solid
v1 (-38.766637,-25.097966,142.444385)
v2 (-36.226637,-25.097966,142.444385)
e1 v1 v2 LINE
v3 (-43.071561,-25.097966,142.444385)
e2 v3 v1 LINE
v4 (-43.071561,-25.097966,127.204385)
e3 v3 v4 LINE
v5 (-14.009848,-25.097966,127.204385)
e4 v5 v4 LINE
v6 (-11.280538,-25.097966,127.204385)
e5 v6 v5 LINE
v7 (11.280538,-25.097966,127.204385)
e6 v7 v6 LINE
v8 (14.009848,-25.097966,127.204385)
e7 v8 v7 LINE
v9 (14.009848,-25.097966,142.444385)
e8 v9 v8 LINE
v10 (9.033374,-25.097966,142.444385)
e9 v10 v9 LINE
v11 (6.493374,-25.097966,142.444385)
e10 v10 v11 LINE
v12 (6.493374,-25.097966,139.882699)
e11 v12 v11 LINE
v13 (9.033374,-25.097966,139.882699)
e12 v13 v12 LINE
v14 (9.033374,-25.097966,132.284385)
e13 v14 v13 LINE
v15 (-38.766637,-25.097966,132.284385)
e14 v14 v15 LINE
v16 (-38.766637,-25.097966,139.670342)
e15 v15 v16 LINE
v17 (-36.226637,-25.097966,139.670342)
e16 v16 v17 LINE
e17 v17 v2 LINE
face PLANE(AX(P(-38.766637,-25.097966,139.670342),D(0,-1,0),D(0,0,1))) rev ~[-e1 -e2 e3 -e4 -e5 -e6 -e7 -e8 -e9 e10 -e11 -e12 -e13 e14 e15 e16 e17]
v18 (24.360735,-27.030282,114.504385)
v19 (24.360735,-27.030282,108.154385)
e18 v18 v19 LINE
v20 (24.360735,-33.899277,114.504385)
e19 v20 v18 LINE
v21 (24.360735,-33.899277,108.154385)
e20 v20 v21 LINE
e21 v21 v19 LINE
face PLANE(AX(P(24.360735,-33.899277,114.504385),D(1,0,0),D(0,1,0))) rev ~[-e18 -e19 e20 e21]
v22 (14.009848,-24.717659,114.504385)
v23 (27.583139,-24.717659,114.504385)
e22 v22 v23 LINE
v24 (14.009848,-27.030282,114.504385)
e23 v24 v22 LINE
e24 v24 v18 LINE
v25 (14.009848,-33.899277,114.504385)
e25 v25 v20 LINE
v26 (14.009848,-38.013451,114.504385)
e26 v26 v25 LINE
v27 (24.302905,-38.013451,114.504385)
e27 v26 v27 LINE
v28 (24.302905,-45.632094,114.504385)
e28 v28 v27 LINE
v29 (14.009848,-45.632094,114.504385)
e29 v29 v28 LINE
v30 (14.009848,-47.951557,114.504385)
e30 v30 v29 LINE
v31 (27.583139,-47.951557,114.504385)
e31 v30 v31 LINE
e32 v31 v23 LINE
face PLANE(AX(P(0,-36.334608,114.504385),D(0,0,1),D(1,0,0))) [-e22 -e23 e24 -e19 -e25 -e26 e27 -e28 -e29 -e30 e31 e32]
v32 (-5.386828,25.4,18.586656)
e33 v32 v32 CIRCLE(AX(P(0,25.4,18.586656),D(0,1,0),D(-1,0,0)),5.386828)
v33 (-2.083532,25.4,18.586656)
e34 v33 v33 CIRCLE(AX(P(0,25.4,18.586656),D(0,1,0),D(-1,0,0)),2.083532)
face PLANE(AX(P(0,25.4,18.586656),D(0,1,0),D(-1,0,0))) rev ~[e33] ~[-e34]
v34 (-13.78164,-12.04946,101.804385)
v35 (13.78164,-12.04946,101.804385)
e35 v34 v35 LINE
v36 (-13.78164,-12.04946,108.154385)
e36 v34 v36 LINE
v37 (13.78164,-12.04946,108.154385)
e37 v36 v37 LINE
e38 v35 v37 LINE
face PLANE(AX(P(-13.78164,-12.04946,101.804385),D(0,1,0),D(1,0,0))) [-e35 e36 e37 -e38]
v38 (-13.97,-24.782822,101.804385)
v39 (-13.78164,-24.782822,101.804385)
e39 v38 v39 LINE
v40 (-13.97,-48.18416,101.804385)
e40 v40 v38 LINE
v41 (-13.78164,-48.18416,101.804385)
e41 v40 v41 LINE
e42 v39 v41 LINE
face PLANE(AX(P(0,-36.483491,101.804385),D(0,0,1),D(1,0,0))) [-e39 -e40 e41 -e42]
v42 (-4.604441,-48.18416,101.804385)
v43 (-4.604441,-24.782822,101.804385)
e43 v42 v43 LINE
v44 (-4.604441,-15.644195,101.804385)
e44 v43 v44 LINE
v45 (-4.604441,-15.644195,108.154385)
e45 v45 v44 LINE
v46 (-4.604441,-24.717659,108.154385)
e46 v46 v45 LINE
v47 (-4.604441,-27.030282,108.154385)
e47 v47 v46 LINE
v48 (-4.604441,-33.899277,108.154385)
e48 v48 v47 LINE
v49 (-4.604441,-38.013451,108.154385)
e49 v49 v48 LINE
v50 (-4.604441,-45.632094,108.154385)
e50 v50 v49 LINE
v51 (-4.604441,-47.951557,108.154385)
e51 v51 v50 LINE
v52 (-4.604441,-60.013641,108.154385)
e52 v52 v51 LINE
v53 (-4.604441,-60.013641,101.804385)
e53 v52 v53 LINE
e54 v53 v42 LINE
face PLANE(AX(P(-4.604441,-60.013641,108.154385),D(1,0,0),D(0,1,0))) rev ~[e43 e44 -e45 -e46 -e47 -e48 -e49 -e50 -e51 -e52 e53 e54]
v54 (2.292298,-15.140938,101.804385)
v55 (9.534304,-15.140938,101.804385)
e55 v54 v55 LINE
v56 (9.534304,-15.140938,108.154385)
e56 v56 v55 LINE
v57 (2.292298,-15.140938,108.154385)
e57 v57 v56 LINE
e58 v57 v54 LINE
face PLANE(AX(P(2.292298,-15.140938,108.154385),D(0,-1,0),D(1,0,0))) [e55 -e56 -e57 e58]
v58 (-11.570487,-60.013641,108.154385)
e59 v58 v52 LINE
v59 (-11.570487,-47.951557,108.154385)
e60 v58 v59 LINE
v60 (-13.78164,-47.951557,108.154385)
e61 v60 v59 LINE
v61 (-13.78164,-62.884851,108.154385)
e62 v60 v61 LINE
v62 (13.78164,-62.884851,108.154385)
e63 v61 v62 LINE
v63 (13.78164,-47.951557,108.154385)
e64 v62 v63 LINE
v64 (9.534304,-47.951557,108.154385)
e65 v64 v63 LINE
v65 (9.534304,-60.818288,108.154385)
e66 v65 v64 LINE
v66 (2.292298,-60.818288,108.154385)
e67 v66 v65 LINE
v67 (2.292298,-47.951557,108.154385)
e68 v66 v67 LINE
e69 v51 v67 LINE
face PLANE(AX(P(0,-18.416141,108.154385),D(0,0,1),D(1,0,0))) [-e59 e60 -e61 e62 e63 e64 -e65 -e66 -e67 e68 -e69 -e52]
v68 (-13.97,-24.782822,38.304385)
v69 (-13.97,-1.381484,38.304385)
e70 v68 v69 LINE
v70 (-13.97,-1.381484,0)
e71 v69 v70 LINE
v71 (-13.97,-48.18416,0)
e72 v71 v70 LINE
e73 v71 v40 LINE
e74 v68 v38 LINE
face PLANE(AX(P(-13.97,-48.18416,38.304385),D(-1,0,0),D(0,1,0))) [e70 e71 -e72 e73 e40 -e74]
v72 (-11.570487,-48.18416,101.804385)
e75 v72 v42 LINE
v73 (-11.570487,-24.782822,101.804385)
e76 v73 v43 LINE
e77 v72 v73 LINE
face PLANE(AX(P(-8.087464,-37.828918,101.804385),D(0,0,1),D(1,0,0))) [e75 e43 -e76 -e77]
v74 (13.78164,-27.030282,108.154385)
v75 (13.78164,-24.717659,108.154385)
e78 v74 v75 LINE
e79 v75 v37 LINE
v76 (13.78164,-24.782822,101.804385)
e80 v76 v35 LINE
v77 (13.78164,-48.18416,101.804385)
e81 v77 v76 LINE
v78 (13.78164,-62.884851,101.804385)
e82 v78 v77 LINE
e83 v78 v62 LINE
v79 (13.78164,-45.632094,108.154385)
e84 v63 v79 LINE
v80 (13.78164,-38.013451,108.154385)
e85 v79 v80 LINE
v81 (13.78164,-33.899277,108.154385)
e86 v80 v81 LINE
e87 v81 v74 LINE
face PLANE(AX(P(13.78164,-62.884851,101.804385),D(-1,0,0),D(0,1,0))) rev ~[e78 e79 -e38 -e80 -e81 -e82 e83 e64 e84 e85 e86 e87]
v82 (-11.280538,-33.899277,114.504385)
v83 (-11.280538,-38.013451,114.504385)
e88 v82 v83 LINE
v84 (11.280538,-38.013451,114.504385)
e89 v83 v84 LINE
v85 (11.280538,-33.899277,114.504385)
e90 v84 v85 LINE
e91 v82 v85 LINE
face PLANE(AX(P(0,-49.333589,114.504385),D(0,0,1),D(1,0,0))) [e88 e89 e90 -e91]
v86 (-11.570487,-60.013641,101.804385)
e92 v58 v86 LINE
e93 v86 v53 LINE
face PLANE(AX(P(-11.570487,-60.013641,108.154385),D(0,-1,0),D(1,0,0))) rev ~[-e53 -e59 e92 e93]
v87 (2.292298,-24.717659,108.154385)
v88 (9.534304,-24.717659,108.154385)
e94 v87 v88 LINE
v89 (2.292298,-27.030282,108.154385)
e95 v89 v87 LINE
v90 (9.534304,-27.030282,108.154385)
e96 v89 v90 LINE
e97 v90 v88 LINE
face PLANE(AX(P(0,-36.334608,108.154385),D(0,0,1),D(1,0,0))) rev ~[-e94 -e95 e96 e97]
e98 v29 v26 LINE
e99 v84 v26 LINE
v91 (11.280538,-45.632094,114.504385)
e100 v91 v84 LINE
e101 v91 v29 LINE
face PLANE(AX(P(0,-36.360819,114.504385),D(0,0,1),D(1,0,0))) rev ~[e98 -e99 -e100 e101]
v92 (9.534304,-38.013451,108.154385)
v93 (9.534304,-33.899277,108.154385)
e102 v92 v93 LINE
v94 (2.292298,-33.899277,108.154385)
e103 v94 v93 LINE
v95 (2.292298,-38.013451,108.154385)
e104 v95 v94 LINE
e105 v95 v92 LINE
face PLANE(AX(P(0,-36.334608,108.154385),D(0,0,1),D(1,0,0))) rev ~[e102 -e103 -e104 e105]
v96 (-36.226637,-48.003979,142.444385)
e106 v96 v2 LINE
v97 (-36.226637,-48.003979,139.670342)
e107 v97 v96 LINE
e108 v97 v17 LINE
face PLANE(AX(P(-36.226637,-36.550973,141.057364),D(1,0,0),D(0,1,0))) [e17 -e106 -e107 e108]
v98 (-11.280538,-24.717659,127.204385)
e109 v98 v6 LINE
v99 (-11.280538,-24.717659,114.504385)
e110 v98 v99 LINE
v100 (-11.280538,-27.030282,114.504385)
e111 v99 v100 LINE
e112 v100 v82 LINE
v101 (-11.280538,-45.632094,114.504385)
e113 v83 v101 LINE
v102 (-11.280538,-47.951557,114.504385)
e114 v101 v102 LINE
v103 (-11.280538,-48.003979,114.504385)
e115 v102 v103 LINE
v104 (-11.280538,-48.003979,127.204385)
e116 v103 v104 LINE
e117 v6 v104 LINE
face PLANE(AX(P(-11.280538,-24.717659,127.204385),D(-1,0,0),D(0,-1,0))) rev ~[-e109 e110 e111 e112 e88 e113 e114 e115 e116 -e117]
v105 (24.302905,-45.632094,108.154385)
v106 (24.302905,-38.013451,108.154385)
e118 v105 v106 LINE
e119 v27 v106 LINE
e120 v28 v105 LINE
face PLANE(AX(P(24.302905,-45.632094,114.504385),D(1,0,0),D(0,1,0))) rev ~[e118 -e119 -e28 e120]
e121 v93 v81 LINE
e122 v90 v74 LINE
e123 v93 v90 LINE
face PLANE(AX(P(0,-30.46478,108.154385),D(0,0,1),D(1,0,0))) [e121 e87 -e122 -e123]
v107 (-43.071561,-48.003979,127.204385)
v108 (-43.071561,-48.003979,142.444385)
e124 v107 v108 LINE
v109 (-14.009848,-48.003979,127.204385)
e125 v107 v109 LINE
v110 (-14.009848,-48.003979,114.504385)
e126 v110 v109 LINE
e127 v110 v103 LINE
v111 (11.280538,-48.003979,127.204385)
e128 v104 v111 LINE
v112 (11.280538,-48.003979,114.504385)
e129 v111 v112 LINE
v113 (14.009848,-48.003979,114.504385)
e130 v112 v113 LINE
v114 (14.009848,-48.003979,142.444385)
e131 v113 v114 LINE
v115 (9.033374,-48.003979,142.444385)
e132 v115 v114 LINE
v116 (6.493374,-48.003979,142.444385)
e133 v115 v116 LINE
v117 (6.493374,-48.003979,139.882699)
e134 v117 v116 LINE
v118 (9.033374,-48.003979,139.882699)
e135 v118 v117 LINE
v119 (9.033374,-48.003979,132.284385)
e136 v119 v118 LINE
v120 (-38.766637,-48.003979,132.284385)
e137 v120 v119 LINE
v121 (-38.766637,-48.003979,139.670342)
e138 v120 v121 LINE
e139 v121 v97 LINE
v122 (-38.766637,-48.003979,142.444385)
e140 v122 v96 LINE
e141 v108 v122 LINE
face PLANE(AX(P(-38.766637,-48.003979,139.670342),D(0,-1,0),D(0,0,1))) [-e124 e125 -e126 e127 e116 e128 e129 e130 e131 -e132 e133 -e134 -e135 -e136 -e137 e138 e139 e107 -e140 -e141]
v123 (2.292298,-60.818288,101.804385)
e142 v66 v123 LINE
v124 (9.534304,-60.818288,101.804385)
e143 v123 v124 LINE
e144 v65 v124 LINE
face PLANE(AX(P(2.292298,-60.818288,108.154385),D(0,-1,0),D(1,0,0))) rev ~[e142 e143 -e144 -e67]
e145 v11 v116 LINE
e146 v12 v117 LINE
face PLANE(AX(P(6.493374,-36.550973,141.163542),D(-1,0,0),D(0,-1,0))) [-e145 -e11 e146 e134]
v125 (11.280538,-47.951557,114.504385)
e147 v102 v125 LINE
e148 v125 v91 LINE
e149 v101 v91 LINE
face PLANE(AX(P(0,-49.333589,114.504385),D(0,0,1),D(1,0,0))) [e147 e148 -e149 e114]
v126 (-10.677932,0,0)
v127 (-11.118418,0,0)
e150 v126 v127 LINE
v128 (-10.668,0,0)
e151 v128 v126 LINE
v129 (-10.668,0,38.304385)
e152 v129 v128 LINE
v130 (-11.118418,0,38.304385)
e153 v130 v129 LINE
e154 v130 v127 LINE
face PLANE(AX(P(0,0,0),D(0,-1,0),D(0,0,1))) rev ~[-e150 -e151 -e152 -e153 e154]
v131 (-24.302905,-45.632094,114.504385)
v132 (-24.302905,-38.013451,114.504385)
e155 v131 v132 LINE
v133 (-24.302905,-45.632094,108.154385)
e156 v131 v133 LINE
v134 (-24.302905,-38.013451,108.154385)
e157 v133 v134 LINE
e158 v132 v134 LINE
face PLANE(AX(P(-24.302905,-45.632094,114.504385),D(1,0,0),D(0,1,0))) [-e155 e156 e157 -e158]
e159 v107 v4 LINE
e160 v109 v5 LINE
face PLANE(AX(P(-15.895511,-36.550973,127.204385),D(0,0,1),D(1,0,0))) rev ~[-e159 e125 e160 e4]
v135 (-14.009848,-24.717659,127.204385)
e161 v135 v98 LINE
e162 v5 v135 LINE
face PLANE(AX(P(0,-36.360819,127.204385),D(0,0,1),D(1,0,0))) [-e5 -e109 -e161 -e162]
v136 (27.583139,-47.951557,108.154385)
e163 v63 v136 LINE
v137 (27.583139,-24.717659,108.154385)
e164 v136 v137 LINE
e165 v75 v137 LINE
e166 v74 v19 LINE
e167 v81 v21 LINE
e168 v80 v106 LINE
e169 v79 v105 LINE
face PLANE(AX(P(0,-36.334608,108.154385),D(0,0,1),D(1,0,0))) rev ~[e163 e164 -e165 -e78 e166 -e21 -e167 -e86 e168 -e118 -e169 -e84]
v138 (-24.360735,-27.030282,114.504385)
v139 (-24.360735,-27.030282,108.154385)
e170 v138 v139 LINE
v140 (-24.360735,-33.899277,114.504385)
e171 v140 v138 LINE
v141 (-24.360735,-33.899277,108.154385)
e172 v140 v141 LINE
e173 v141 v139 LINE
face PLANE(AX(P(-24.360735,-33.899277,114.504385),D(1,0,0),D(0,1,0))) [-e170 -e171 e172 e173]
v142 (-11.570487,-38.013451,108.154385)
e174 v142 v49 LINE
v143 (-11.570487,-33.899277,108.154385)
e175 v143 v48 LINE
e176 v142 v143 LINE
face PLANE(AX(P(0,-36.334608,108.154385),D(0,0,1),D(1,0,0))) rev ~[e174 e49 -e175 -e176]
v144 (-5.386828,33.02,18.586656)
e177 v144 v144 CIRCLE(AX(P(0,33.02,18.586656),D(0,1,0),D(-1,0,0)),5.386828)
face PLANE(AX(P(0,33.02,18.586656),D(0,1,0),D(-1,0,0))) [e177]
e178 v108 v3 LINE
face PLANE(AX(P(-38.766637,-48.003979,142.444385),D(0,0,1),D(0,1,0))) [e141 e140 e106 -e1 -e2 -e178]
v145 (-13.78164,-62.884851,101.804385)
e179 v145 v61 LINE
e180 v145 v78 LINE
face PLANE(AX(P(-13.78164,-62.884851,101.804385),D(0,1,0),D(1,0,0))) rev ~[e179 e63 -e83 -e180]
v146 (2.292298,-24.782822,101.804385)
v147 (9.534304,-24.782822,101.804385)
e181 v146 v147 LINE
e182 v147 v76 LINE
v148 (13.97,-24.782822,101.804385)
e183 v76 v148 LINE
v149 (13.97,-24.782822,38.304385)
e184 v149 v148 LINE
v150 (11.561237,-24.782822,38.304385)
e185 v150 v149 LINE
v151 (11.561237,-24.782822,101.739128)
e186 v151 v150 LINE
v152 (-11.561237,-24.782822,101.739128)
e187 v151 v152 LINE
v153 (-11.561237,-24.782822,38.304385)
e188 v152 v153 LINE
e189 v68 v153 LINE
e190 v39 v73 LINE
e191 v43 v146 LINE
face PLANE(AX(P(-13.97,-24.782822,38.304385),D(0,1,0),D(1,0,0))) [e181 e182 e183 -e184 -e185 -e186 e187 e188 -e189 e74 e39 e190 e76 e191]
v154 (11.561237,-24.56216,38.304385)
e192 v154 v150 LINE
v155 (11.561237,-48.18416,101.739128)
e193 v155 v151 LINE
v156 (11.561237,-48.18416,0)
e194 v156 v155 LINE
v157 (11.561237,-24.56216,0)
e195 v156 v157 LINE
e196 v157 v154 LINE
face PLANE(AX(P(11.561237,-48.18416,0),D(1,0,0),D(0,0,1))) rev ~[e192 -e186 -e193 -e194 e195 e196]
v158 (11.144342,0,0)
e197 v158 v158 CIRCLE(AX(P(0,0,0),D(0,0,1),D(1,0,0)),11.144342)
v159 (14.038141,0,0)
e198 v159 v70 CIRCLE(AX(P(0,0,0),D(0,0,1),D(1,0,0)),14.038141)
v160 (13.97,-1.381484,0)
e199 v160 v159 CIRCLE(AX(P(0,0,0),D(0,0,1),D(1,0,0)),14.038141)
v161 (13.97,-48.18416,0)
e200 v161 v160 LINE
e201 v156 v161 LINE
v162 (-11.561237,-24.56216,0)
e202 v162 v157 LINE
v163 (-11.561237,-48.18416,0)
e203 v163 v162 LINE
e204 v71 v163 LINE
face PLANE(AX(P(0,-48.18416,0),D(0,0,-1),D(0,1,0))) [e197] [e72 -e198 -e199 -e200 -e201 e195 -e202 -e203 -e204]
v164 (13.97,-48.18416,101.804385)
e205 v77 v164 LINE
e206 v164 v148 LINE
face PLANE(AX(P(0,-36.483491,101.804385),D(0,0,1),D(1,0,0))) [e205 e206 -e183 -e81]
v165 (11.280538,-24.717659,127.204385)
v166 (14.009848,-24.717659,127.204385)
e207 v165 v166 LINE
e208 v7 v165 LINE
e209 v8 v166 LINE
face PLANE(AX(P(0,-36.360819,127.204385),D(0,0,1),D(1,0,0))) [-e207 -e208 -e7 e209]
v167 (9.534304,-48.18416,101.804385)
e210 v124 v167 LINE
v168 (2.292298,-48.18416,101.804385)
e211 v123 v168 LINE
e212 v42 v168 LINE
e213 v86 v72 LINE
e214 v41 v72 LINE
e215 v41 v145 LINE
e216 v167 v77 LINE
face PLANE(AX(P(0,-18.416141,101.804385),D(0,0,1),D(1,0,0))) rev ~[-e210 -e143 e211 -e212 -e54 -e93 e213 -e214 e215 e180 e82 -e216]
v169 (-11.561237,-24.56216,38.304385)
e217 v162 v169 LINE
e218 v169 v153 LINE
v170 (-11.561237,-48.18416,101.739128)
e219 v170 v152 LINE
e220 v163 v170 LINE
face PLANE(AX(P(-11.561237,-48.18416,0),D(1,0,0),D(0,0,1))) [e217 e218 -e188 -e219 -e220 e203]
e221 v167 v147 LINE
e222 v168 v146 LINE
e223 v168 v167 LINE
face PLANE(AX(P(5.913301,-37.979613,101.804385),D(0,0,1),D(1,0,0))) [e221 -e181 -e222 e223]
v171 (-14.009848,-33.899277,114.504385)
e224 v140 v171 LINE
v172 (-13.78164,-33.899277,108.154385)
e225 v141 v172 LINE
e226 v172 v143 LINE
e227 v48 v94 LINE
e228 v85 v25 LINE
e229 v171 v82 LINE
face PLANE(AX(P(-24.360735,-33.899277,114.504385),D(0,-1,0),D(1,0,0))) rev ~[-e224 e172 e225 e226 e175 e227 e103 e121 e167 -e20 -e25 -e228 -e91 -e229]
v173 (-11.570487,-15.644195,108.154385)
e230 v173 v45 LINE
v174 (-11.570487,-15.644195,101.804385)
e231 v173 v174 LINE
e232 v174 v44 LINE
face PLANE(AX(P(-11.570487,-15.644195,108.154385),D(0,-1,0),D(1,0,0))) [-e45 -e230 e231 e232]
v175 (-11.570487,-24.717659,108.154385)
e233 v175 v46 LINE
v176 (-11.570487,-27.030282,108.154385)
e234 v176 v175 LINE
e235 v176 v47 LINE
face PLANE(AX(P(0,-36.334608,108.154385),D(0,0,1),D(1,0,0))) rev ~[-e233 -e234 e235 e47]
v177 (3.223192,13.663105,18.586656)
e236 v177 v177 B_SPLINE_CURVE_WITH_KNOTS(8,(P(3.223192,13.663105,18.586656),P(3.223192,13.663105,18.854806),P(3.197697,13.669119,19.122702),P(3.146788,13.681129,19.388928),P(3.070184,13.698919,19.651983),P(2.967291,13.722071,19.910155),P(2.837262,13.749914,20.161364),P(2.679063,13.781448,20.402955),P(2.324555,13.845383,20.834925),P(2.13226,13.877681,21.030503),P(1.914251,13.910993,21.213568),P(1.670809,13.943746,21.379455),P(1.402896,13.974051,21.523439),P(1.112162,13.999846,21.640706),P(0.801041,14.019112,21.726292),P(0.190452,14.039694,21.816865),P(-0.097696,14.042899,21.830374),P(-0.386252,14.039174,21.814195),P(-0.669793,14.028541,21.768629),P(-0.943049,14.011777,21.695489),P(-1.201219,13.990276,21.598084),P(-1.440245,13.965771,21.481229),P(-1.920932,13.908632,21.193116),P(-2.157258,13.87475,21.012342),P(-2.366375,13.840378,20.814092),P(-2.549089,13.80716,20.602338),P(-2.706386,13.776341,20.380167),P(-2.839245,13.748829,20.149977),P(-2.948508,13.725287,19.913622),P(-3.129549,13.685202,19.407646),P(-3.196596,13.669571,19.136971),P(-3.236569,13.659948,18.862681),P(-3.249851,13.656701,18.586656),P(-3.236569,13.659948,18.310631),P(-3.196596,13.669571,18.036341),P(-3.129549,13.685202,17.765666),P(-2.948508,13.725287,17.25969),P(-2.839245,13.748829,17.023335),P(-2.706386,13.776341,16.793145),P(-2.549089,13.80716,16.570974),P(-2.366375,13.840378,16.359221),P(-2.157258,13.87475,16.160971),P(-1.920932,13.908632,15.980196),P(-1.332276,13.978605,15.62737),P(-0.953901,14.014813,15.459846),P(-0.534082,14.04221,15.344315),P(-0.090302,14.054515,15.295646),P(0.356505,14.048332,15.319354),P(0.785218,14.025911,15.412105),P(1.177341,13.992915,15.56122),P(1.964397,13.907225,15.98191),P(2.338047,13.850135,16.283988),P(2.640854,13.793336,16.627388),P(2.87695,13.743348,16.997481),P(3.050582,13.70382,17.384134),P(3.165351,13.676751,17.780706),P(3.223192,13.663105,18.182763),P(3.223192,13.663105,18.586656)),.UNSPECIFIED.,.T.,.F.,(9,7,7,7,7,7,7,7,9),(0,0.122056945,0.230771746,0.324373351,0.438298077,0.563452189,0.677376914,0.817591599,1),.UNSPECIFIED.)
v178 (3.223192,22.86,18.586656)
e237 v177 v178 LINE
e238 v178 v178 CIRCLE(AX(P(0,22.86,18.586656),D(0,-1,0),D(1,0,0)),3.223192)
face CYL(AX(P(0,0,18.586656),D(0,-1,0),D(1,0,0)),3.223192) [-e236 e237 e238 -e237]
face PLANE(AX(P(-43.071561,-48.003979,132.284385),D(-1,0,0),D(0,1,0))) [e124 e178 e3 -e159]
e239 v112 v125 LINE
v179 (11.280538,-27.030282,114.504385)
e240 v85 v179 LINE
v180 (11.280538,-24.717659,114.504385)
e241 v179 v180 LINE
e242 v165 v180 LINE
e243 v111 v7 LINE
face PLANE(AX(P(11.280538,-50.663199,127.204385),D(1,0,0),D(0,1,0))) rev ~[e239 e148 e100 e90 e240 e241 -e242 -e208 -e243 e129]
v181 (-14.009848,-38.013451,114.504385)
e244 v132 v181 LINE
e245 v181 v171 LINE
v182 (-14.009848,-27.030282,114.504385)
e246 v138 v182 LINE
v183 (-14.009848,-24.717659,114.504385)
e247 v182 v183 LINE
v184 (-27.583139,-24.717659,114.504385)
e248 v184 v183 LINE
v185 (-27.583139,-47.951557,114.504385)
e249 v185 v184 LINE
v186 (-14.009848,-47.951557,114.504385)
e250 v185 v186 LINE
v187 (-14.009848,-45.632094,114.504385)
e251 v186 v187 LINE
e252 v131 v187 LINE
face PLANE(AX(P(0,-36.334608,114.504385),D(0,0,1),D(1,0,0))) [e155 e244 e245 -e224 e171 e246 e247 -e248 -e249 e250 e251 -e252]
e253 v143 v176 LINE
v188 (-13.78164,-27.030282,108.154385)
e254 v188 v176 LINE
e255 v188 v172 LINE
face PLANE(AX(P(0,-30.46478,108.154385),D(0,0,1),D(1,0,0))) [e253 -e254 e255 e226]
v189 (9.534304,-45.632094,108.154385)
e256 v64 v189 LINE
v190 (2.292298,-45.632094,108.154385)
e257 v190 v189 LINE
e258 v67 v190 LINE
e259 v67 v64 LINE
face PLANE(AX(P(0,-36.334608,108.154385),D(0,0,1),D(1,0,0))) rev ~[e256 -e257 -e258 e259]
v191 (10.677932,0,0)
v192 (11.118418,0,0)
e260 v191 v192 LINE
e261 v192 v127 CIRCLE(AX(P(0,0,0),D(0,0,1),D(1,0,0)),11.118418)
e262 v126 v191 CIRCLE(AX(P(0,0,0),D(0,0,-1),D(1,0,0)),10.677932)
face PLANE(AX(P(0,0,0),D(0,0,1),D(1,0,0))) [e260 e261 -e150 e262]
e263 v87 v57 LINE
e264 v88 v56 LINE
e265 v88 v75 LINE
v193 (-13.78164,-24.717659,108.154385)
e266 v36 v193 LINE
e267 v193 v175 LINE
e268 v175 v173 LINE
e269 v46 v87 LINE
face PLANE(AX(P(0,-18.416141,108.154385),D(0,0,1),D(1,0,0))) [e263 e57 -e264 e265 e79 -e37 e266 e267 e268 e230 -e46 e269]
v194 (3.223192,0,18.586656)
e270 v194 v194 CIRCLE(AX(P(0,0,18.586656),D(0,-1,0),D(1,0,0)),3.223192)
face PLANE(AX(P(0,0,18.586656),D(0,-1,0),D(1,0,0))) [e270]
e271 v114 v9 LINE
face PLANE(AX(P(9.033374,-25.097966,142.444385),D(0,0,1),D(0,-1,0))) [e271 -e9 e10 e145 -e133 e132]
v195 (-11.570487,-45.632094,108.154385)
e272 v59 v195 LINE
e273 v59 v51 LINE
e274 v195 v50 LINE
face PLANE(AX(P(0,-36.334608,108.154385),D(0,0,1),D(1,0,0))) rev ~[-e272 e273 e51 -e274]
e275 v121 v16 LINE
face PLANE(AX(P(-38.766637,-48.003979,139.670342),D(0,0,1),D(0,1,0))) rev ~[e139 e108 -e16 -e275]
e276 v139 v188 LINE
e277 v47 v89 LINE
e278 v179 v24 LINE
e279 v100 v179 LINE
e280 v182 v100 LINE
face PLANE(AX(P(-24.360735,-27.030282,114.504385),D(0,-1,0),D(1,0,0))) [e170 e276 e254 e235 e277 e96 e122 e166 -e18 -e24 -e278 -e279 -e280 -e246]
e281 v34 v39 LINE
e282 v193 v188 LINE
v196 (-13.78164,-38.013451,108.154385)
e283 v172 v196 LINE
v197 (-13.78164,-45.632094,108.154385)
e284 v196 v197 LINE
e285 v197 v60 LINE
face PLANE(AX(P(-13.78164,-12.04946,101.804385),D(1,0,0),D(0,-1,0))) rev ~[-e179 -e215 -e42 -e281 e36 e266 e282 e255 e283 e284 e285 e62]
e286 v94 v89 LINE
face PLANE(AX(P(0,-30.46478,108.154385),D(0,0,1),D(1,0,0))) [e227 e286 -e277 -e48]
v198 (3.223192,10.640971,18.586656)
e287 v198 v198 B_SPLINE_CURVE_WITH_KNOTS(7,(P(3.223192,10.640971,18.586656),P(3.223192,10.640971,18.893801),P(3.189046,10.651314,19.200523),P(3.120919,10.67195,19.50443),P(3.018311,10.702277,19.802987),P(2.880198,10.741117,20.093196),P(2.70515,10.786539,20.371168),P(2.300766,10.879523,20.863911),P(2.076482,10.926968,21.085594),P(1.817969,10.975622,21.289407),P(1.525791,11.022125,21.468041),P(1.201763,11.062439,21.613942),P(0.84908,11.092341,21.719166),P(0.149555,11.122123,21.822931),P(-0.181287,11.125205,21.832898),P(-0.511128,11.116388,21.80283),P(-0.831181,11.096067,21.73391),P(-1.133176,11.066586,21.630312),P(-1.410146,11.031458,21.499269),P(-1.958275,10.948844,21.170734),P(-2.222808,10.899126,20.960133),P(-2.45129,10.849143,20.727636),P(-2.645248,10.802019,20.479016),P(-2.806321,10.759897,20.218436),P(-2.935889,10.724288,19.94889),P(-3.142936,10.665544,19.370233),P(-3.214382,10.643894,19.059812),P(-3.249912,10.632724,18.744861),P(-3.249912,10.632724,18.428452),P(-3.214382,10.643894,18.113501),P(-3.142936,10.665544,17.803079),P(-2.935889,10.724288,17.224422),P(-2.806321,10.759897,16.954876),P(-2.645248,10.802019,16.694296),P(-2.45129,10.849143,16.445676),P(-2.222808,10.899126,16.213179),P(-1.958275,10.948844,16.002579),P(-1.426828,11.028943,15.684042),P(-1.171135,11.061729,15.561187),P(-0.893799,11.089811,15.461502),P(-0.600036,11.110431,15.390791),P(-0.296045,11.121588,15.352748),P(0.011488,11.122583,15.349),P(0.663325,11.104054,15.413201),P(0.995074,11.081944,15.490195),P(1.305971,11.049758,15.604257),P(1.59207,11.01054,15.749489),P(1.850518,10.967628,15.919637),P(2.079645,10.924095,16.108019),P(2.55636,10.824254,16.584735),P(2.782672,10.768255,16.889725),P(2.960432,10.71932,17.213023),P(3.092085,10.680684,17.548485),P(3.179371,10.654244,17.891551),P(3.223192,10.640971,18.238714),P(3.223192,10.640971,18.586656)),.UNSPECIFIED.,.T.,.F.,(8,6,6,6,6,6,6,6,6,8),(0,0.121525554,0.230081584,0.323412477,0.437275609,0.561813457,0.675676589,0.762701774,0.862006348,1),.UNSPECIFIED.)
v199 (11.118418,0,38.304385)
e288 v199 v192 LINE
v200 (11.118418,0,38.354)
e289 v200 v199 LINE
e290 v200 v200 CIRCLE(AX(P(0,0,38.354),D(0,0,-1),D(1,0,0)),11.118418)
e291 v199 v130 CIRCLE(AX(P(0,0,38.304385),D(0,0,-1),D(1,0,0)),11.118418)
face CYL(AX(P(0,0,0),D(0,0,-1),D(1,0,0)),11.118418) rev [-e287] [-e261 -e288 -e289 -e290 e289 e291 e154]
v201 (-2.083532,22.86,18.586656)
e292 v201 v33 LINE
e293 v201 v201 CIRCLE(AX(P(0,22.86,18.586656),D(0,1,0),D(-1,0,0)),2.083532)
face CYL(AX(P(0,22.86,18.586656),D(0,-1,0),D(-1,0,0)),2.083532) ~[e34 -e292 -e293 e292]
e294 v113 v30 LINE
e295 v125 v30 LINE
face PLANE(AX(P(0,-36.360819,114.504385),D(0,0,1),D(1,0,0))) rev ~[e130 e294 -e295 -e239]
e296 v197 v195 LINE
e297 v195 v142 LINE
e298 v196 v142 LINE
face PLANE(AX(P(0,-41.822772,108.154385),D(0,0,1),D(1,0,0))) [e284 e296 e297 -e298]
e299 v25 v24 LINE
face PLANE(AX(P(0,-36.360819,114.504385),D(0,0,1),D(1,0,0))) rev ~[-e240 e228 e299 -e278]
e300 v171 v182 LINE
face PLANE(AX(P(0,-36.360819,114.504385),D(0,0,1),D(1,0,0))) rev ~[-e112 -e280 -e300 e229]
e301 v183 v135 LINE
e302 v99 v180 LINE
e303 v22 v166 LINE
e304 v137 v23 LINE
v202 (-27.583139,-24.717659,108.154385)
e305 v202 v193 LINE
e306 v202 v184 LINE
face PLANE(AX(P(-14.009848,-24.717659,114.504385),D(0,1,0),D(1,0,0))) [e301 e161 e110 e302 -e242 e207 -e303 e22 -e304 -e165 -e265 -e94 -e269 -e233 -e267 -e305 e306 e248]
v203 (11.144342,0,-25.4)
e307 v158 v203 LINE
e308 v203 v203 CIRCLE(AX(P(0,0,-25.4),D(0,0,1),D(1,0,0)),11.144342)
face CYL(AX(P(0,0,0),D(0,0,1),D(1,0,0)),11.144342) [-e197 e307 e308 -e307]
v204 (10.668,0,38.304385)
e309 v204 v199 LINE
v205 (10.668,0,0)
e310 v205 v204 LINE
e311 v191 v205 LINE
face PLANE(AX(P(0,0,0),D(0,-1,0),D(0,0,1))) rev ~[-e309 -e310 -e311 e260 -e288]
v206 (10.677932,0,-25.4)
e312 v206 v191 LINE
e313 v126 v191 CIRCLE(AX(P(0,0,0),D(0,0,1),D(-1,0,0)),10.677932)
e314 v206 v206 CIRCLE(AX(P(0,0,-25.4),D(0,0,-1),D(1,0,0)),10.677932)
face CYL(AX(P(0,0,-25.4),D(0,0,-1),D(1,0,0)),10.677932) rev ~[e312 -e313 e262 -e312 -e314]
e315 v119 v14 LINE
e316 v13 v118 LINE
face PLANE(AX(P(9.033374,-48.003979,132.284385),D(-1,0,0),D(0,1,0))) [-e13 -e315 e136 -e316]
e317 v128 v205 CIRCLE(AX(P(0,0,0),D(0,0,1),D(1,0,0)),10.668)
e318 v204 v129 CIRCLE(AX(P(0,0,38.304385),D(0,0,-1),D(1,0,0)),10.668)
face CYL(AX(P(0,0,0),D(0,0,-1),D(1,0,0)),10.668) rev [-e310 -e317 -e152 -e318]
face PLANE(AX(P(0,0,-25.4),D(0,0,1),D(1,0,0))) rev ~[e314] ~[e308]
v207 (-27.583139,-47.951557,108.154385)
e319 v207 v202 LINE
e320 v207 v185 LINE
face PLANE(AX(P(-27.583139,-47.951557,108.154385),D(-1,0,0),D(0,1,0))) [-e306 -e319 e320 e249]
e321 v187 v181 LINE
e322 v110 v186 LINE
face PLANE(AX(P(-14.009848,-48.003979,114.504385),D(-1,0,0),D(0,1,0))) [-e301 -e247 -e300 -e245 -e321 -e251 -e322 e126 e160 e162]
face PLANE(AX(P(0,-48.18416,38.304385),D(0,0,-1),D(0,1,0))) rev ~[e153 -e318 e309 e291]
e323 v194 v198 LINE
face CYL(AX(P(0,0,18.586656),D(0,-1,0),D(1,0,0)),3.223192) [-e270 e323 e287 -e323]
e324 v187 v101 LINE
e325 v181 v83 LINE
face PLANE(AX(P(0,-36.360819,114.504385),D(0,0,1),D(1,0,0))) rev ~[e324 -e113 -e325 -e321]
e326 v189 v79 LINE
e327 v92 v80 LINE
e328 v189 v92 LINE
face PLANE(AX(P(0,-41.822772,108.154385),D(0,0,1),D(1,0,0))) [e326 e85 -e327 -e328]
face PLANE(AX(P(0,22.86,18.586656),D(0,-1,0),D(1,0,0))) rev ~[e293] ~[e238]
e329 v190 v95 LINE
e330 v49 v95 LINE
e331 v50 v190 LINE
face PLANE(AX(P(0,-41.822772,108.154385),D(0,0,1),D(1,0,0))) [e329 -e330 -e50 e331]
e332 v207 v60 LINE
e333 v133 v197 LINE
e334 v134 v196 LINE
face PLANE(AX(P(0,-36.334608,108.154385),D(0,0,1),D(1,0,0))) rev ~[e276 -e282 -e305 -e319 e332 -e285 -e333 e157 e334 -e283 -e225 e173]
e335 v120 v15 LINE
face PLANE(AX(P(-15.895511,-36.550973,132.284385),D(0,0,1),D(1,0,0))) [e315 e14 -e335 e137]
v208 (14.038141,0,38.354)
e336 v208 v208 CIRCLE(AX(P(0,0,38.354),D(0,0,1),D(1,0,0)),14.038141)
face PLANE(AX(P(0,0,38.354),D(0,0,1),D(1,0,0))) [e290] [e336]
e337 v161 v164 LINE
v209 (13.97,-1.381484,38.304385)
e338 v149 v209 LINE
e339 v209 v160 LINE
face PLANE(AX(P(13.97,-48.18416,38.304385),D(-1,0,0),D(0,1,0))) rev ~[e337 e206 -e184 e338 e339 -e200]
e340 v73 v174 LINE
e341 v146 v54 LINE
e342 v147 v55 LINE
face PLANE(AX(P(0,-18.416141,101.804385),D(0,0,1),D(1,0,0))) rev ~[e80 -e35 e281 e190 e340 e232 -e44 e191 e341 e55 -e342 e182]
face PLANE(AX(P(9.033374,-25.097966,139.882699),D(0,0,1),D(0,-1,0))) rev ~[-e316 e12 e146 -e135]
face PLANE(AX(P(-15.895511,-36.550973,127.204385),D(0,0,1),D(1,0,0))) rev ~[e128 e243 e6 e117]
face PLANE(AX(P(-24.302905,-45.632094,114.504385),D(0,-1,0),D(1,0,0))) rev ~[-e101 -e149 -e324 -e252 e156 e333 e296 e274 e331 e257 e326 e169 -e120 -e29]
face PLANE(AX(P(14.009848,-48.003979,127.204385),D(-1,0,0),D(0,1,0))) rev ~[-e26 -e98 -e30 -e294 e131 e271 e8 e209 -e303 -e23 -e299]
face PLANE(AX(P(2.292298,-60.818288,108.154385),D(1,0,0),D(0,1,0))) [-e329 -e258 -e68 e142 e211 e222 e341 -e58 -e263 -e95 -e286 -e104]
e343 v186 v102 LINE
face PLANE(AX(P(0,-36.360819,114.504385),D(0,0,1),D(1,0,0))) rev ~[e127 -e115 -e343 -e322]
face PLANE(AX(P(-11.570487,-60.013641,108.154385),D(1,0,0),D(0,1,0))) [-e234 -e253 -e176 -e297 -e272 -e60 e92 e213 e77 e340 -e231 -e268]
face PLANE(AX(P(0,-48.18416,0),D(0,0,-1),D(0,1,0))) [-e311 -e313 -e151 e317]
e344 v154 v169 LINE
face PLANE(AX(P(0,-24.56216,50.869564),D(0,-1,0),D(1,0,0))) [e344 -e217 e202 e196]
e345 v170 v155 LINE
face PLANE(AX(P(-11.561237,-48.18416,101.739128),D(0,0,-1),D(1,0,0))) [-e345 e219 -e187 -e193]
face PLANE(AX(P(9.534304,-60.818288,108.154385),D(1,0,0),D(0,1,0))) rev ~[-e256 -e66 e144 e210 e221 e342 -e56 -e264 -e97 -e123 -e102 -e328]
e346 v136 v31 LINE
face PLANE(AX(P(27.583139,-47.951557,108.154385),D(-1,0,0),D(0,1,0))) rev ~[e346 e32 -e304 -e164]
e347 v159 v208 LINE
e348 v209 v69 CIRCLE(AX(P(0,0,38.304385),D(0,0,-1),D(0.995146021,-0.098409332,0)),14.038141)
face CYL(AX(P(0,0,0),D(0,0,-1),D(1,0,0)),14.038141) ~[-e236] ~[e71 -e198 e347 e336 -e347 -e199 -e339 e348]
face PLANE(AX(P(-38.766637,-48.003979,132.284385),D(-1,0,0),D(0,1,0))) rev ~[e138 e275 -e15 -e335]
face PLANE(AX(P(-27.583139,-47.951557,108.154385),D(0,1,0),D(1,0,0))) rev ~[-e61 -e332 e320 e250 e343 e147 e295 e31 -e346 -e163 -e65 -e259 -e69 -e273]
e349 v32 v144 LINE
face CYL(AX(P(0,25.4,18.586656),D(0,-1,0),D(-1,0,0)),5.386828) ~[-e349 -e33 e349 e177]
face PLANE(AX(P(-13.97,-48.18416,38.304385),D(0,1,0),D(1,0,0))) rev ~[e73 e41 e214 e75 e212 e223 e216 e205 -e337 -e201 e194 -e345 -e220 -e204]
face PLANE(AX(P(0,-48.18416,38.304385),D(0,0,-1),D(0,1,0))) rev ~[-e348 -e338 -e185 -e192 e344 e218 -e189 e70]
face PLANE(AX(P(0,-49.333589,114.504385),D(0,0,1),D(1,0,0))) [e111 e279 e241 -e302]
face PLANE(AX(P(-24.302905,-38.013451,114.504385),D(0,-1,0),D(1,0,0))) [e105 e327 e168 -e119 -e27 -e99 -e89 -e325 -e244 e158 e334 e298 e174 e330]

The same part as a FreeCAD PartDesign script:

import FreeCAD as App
import Part
import Sketcher
from FreeCAD import Vector
Q = App.Units.Quantity


def add_polygon(sketch, points):
    """Adds a closed chain of lines whose ends are joined by coincident constraints."""
    first, n = sketch.GeometryCount, len(points)
    for a, b in zip(points, points[1:] + points[:1]):
        sketch.addGeometry(Part.LineSegment(App.Vector(*a, 0), App.Vector(*b, 0)), False)
    for i in range(n):
        sketch.addConstraint(Sketcher.Constraint("Coincident", first + i, 2, first + (i + 1) % n, 1))

doc = App.newDocument("Part")
body = doc.addObject("PartDesign::Body", "Body")

sketch1 = body.newObject("Sketcher::SketchObject", "Sketch")
sketch1.AttachmentSupport = (doc.getObject("XY_Plane"), [""])
sketch1.MapMode = "FlatFace"
sketch1.addGeometry(Part.Circle(Vector(0, 0, 0), Vector(0, 0, 1), 11.485147), False)
sketch1.addConstraint(Sketcher.Constraint("Coincident", 0, 3, -1, 1))
sketch1.addConstraint(Sketcher.Constraint("Diameter", 0, Q("22.970295 mm")))
pad1 = body.newObject("PartDesign::Pad", "Pad")
pad1.Profile = sketch1
pad1.Length = Q("1 in")
body2 = doc.addObject("PartDesign::Body", "Body001")

sketch2 = body2.newObject("Sketcher::SketchObject", "Sketch001")
sketch2.AttachmentSupport = (doc.getObject("XY_Plane001"), [""])
sketch2.MapMode = "FlatFace"
sketch2.addGeometry(Part.Circle(Vector(0, 0, 0), Vector(0, 0, 1), 14.038141), False)
sketch2.addConstraint(Sketcher.Constraint("Coincident", 0, 3, -1, 1))
sketch2.addConstraint(Sketcher.Constraint("Diameter", 0, Q("28.076282 mm")))
pad2 = body2.newObject("PartDesign::Pad", "Pad001")
pad2.Profile = sketch2
pad2.Length = Q("1.51 in")
body3 = doc.addObject("PartDesign::Body", "Body002")

sketch3 = body3.newObject("Sketcher::SketchObject", "Sketch002")
sketch3.AttachmentSupport = (doc.getObject("XY_Plane002"), [""])
sketch3.MapMode = "FlatFace"
sketch3.addGeometry(Part.Circle(Vector(0, 0, 0), Vector(0, 0, 1), 11.118418), False)
sketch3.addConstraint(Sketcher.Constraint("Coincident", 0, 3, -1, 1))
sketch3.addConstraint(Sketcher.Constraint("Diameter", 0, Q("22.236836 mm")))
pad3 = body3.newObject("PartDesign::Pad", "Pad002")
pad3.Profile = sketch3
pad3.Length = Q("1.6 in")
doc.recompute()

body4 = doc.addObject("PartDesign::Body", "Body003")
body4.BaseFeature = body3
boolean = body.newObject("PartDesign::Boolean", "Boolean")
boolean.Type = "Cut"
boolean.addObjects([body4])
doc.recompute()

boolean2 = body2.newObject("PartDesign::Boolean", "Boolean001")
boolean2.Type = "Cut"
boolean2.addObjects([body3])
body5 = doc.addObject("PartDesign::Body", "Body004")

sketch4 = body5.newObject("Sketcher::SketchObject", "Sketch003")
sketch4.AttachmentSupport = (doc.getObject("XY_Plane004"), [""])
sketch4.MapMode = "FlatFace"
sketch4.addGeometry(Part.Circle(Vector(0, 0, 0), Vector(0, 0, 1), 11.144342), False)
sketch4.addConstraint(Sketcher.Constraint("Coincident", 0, 3, -1, 1))
sketch4.addConstraint(Sketcher.Constraint("Diameter", 0, Q("22.288684 mm")))
pad4 = body5.newObject("PartDesign::Pad", "Pad003")
pad4.Profile = sketch4
pad4.Length = Q("1 in")
pad4.Reversed = True

sketch5 = body5.newObject("Sketcher::SketchObject", "Sketch004")
sketch5.AttachmentSupport = (doc.getObject("XY_Plane004"), [""])
sketch5.MapMode = "FlatFace"
sketch5.AttachmentOffset = App.Placement(Vector(0, 0, -1 * 25.4), App.Rotation())
sketch5.addGeometry(Part.Circle(Vector(0, 0, 0), Vector(0, 0, 1), 10.677932), False)
sketch5.addConstraint(Sketcher.Constraint("Coincident", 0, 3, -1, 1))
sketch5.addConstraint(Sketcher.Constraint("Diameter", 0, Q("21.355865 mm")))
pocket1 = body5.newObject("PartDesign::Pocket", "Pocket")
pocket1.Profile = sketch5
pocket1.Length = Q("1 in")
pocket1.Reversed = True
doc.recompute()

boolean3 = body.newObject("PartDesign::Boolean", "Boolean002")
boolean3.Type = "Fuse"
boolean3.addObjects([body2])
doc.recompute()

boolean4 = body.newObject("PartDesign::Boolean", "Boolean003")
boolean4.Type = "Fuse"
boolean4.addObjects([body5])

sketch6 = body.newObject("Sketcher::SketchObject", "Sketch005")
sketch6.AttachmentSupport = (doc.getObject("YZ_Plane"), [""])
sketch6.MapMode = "FlatFace"
add_polygon(sketch6, [(-48.18416, 38.304385), (-48.18416, 0), (0, 0), (0, 38.304385)])
sketch6.addConstraint(Sketcher.Constraint("Vertical", 0))
sketch6.addConstraint(Sketcher.Constraint("Horizontal", 1))
sketch6.addConstraint(Sketcher.Constraint("Vertical", 2))
sketch6.addConstraint(Sketcher.Constraint("Horizontal", 3))
sketch6.addConstraint(Sketcher.Constraint("Coincident", 1, 2, -1, 1))
sketch6.addConstraint(Sketcher.Constraint("DistanceX", 1, 1, 1, 2, Q("48.18416 mm")))
sketch6.addConstraint(Sketcher.Constraint("DistanceY", 0, 2, 0, 1, Q("38.304385 mm")))
pad5 = body.newObject("PartDesign::Pad", "Pad004")
pad5.Profile = sketch6
pad5.Type = "TwoLengths"
pad5.Length = Q("0.55 in")
pad5.Length2 = Q("0.55 in")

sketch7 = body.newObject("Sketcher::SketchObject", "Sketch006")
sketch7.AttachmentSupport = (doc.getObject("XY_Plane"), [""])
sketch7.MapMode = "FlatFace"
sketch7.AttachmentOffset = App.Placement(Vector(0, 0, 38.304385), App.Rotation())
add_polygon(sketch7, [(-13.97, -24.782822), (-13.97, -48.18416), (13.97, -48.18416), (13.97, -24.782822)])
sketch7.addConstraint(Sketcher.Constraint("Vertical", 0))
sketch7.addConstraint(Sketcher.Constraint("Horizontal", 1))
sketch7.addConstraint(Sketcher.Constraint("Vertical", 2))
sketch7.addConstraint(Sketcher.Constraint("Horizontal", 3))
sketch7.addConstraint(Sketcher.Constraint("DistanceX", 1, 1, 1, 2, Q("1.1 in")))
sketch7.addConstraint(Sketcher.Constraint("DistanceX", 0, 2, -1, 1, Q("0.55 in")))
sketch7.addConstraint(Sketcher.Constraint("DistanceY", 0, 2, 0, 1, Q("23.401338 mm")))
sketch7.addConstraint(Sketcher.Constraint("DistanceY", 0, 2, -1, 1, Q("48.18416 mm")))
pad6 = body.newObject("PartDesign::Pad", "Pad005")
pad6.Profile = sketch7
pad6.Length = Q("2.5 in")

sketch8 = body.newObject("Sketcher::SketchObject", "Sketch007")
sketch8.AttachmentSupport = (doc.getObject("XY_Plane"), [""])
sketch8.MapMode = "FlatFace"
sketch8.AttachmentOffset = App.Placement(Vector(0, 0, 101.804385), App.Rotation())
add_polygon(sketch8, [(-13.78164, -12.04946), (-13.78164, -62.884851), (13.78164, -62.884851), (13.78164, -12.04946)])
sketch8.addConstraint(Sketcher.Constraint("Vertical", 0))
sketch8.addConstraint(Sketcher.Constraint("Horizontal", 1))
sketch8.addConstraint(Sketcher.Constraint("Vertical", 2))
sketch8.addConstraint(Sketcher.Constraint("Horizontal", 3))
sketch8.addConstraint(Sketcher.Constraint("DistanceX", 1, 1, 1, 2, Q("27.563279 mm")))
sketch8.addConstraint(Sketcher.Constraint("DistanceY", 0, 2, 0, 1, Q("50.835392 mm")))
sketch8.addConstraint(Sketcher.Constraint("DistanceX", 0, 2, -1, 1, Q("13.78164 mm")))
sketch8.addConstraint(Sketcher.Constraint("DistanceY", 0, 2, -1, 1, Q("62.884851 mm")))
pad7 = body.newObject("PartDesign::Pad", "Pad006")
pad7.Profile = sketch8
pad7.Length = Q("0.25 in")

sketch9 = body.newObject("Sketcher::SketchObject", "Sketch008")
sketch9.AttachmentSupport = (doc.getObject("XY_Plane"), [""])
sketch9.MapMode = "FlatFace"
sketch9.AttachmentOffset = App.Placement(Vector(0, 0, 108.154385), App.Rotation())
add_polygon(sketch9, [(2.292298, -15.140938), (2.292298, -60.818288), (9.534304, -60.818288), (9.534304, -15.140938)])
add_polygon(sketch9, [(-11.570487, -15.644195), (-11.570487, -60.013641), (-4.604441, -60.013641), (-4.604441, -15.644195)])
sketch9.addConstraint(Sketcher.Constraint("Vertical", 0))
sketch9.addConstraint(Sketcher.Constraint("Horizontal", 1))
sketch9.addConstraint(Sketcher.Constraint("Vertical", 2))
sketch9.addConstraint(Sketcher.Constraint("Horizontal", 3))
sketch9.addConstraint(Sketcher.Constraint("Vertical", 4))
sketch9.addConstraint(Sketcher.Constraint("Horizontal", 5))
sketch9.addConstraint(Sketcher.Constraint("Vertical", 6))
sketch9.addConstraint(Sketcher.Constraint("Horizontal", 7))
sketch9.addConstraint(Sketcher.Constraint("DistanceY", 2, 2, -1, 1, Q("0.5960999 in")))
sketch9.addConstraint(Sketcher.Constraint("DistanceY", 0, 2, 0, 1, Q("45.677351 mm")))
sketch9.addConstraint(Sketcher.Constraint("DistanceX", 1, 1, 1, 2, Q("7.242006 mm")))
sketch9.addConstraint(Sketcher.Constraint("DistanceX", 5, 1, 5, 2, Q("6.966046 mm")))
sketch9.addConstraint(Sketcher.Constraint("DistanceY", 4, 2, 4, 1, Q("44.369446 mm")))
sketch9.addConstraint(Sketcher.Constraint("DistanceY", 4, 2, -1, 1, Q("60.013641 mm")))
sketch9.addConstraint(Sketcher.Constraint("DistanceX", 5, 2, -1, 1, Q("4.604441 mm")))
sketch9.addConstraint(Sketcher.Constraint("DistanceX", 4, 2, 1, 2, Q("21.104791 mm")))
pocket2 = body.newObject("PartDesign::Pocket", "Pocket001")
pocket2.Profile = sketch9
pocket2.Length = Q("0.25 in")

sketch10 = body.newObject("Sketcher::SketchObject", "Sketch009")
sketch10.AttachmentSupport = (doc.getObject("XY_Plane"), [""])
sketch10.MapMode = "FlatFace"
sketch10.AttachmentOffset = App.Placement(Vector(0, 0, 108.154385), App.Rotation())
add_polygon(sketch10, [(-27.583139, -24.717659), (-27.583139, -47.951557), (27.583139, -47.951557), (27.583139, -24.717659)])
sketch10.addConstraint(Sketcher.Constraint("Vertical", 0))
sketch10.addConstraint(Sketcher.Constraint("Horizontal", 1))
sketch10.addConstraint(Sketcher.Constraint("Vertical", 2))
sketch10.addConstraint(Sketcher.Constraint("Horizontal", 3))
sketch10.addConstraint(Sketcher.Constraint("DistanceX", 1, 1, 1, 2, Q("55.166278 mm")))
sketch10.addConstraint(Sketcher.Constraint("DistanceY", 0, 2, 0, 1, Q("23.233898 mm")))
sketch10.addConstraint(Sketcher.Constraint("DistanceX", 0, 2, -1, 1, Q("27.583139 mm")))
sketch10.addConstraint(Sketcher.Constraint("DistanceY", 2, 2, -1, 1, Q("24.717659 mm")))
pad8 = body.newObject("PartDesign::Pad", "Pad007")
pad8.Profile = sketch10
pad8.Length = Q("0.25 in")

sketch11 = body.newObject("Sketcher::SketchObject", "Sketch010")
sketch11.AttachmentSupport = (doc.getObject("XY_Plane"), [""])
sketch11.MapMode = "FlatFace"
sketch11.AttachmentOffset = App.Placement(Vector(0, 0, 114.504385), App.Rotation())
add_polygon(sketch11, [(-24.360735, -27.030282), (-24.360735, -33.899277), (24.360735, -33.899277), (24.360735, -27.030282)])
add_polygon(sketch11, [(-24.302905, -38.013451), (-24.302905, -45.632094), (24.302905, -45.632094), (24.302905, -38.013451)])
sketch11.addConstraint(Sketcher.Constraint("Vertical", 0))
sketch11.addConstraint(Sketcher.Constraint("Horizontal", 1))
sketch11.addConstraint(Sketcher.Constraint("Vertical", 2))
sketch11.addConstraint(Sketcher.Constraint("Horizontal", 3))
sketch11.addConstraint(Sketcher.Constraint("Vertical", 4))
sketch11.addConstraint(Sketcher.Constraint("Horizontal", 5))
sketch11.addConstraint(Sketcher.Constraint("Vertical", 6))
sketch11.addConstraint(Sketcher.Constraint("Horizontal", 7))
sketch11.addConstraint(Sketcher.Constraint("DistanceX", 1, 1, 1, 2, Q("48.72147 mm")))
sketch11.addConstraint(Sketcher.Constraint("DistanceX", 5, 1, 5, 2, Q("48.605811 mm")))
sketch11.addConstraint(Sketcher.Constraint("DistanceY", 0, 2, 0, 1, Q("6.868996 mm")))
sketch11.addConstraint(Sketcher.Constraint("DistanceY", 4, 2, 4, 1, Q("7.618643 mm")))
sketch11.addConstraint(Sketcher.Constraint("DistanceY", 2, 2, -1, 1, Q("27.030282 mm")))
sketch11.addConstraint(Sketcher.Constraint("DistanceY", 6, 2, -1, 1, Q("38.013451 mm")))
sketch11.addConstraint(Sketcher.Constraint("DistanceX", 0, 2, 4, 2, Q("0.05783 mm")))
sketch11.addConstraint(Sketcher.Constraint("DistanceX", 0, 2, -1, 1, Q("24.360735 mm")))
pocket3 = body.newObject("PartDesign::Pocket", "Pocket002")
pocket3.Profile = sketch11
pocket3.Length = Q("0.25 in")

sketch12 = body.newObject("Sketcher::SketchObject", "Sketch011")
sketch12.AttachmentSupport = (doc.getObject("XZ_Plane"), [""])
sketch12.MapMode = "FlatFace"
sketch12.AttachmentOffset = App.Placement(Vector(0, 0, 48.18416), App.Rotation())
add_polygon(sketch12, [(-11.561237, 101.739128), (-11.561237, 0), (11.561237, 0), (11.561237, 101.739128)])
sketch12.addConstraint(Sketcher.Constraint("Vertical", 0))
sketch12.addConstraint(Sketcher.Constraint("Horizontal", 1))
sketch12.addConstraint(Sketcher.Constraint("Vertical", 2))
sketch12.addConstraint(Sketcher.Constraint("Horizontal", 3))
sketch12.addConstraint(Sketcher.Constraint("Symmetric", 0, 2, 1, 2, -1, 1))
sketch12.addConstraint(Sketcher.Constraint("DistanceX", 1, 1, 1, 2, Q("23.122474 mm")))
sketch12.addConstraint(Sketcher.Constraint("DistanceY", 0, 2, 0, 1, Q("101.739128 mm")))
pocket4 = body.newObject("PartDesign::Pocket", "Pocket003")
pocket4.Profile = sketch12
pocket4.Length = Q("0.93 in")

sketch13 = body.newObject("Sketcher::SketchObject", "Sketch012")
sketch13.AttachmentSupport = (doc.getObject("XY_Plane"), [""])
sketch13.MapMode = "FlatFace"
sketch13.AttachmentOffset = App.Placement(Vector(0, 0, 114.504385), App.Rotation())
add_polygon(sketch13, [(-14.009848, -24.717659), (-14.009848, -48.003979), (14.009848, -48.003979), (14.009848, -24.717659)])
sketch13.addConstraint(Sketcher.Constraint("Vertical", 0))
sketch13.addConstraint(Sketcher.Constraint("Horizontal", 1))
sketch13.addConstraint(Sketcher.Constraint("Vertical", 2))
sketch13.addConstraint(Sketcher.Constraint("Horizontal", 3))
sketch13.addConstraint(Sketcher.Constraint("DistanceY", 0, 2, 0, 1, Q("23.28632 mm")))
sketch13.addConstraint(Sketcher.Constraint("DistanceX", 1, 1, 1, 2, Q("28.019696 mm")))
sketch13.addConstraint(Sketcher.Constraint("DistanceX", 0, 2, -1, 1, Q("14.009848 mm")))
sketch13.addConstraint(Sketcher.Constraint("DistanceY", 0, 2, -1, 1, Q("48.003979 mm")))
pad9 = body.newObject("PartDesign::Pad", "Pad008")
pad9.Profile = sketch13
pad9.Length = Q("0.5 in")

sketch14 = body.newObject("Sketcher::SketchObject", "Sketch013")
sketch14.AttachmentSupport = (doc.getObject("XY_Plane"), [""])
sketch14.MapMode = "FlatFace"
sketch14.AttachmentOffset = App.Placement(Vector(0, 0, 127.204385), App.Rotation())
add_polygon(sketch14, [(-11.280538, -50.663199), (11.280538, -50.663199), (11.280538, -24.717659), (-11.280538, -24.717659)])
sketch14.addConstraint(Sketcher.Constraint("Horizontal", 0))
sketch14.addConstraint(Sketcher.Constraint("Vertical", 1))
sketch14.addConstraint(Sketcher.Constraint("Horizontal", 2))
sketch14.addConstraint(Sketcher.Constraint("Vertical", 3))
sketch14.addConstraint(Sketcher.Constraint("DistanceY", 1, 1, 1, 2, Q("25.945541 mm")))
sketch14.addConstraint(Sketcher.Constraint("DistanceY", 0, 2, -1, 1, Q("50.663199 mm")))
sketch14.addConstraint(Sketcher.Constraint("DistanceX", 0, 1, 0, 2, Q("22.561075 mm")))
sketch14.addConstraint(Sketcher.Constraint("DistanceX", -1, 1, 0, 2, Q("11.280538 mm")))
pocket5 = body.newObject("PartDesign::Pocket", "Pocket004")
pocket5.Profile = sketch14
pocket5.Length = Q("0.5 in")

sketch15 = body.newObject("Sketcher::SketchObject", "Sketch014")
sketch15.AttachmentSupport = (doc.getObject("XY_Plane"), [""])
sketch15.MapMode = "FlatFace"
sketch15.AttachmentOffset = App.Placement(Vector(0, 0, 127.204385), App.Rotation())
add_polygon(sketch15, [(-43.071561, -25.097966), (-43.071561, -48.003979), (14.009848, -48.003979), (14.009848, -25.097966)])
sketch15.addConstraint(Sketcher.Constraint("Vertical", 0))
sketch15.addConstraint(Sketcher.Constraint("Horizontal", 1))
sketch15.addConstraint(Sketcher.Constraint("Vertical", 2))
sketch15.addConstraint(Sketcher.Constraint("Horizontal", 3))
sketch15.addConstraint(Sketcher.Constraint("DistanceX", 1, 1, 1, 2, Q("57.081409 mm")))
sketch15.addConstraint(Sketcher.Constraint("DistanceY", 0, 2, 0, 1, Q("22.906013 mm")))
sketch15.addConstraint(Sketcher.Constraint("DistanceX", 0, 2, -1, 1, Q("43.071561 mm")))
sketch15.addConstraint(Sketcher.Constraint("DistanceY", 0, 2, -1, 1, Q("48.003979 mm")))
pad10 = body.newObject("PartDesign::Pad", "Pad009")
pad10.Profile = sketch15
pad10.Length = Q("0.2 in")

sketch16 = body.newObject("Sketcher::SketchObject", "Sketch015")
sketch16.AttachmentSupport = (doc.getObject("XY_Plane"), [""])
sketch16.MapMode = "FlatFace"
sketch16.AttachmentOffset = App.Placement(Vector(0, 0, 132.284385), App.Rotation())
add_polygon(sketch16, [(-43.071561, -25.097966), (-43.071561, -48.003979), (-38.766637, -48.003979), (-38.766637, -25.097966)])
add_polygon(sketch16, [(9.033374, -25.097966), (9.033374, -48.003979), (14.009848, -48.003979), (14.009848, -25.097966)])
sketch16.addConstraint(Sketcher.Constraint("Vertical", 0))
sketch16.addConstraint(Sketcher.Constraint("Horizontal", 1))
sketch16.addConstraint(Sketcher.Constraint("Vertical", 2))
sketch16.addConstraint(Sketcher.Constraint("Horizontal", 3))
sketch16.addConstraint(Sketcher.Constraint("Vertical", 4))
sketch16.addConstraint(Sketcher.Constraint("Horizontal", 5))
sketch16.addConstraint(Sketcher.Constraint("Vertical", 6))
sketch16.addConstraint(Sketcher.Constraint("Horizontal", 7))
sketch16.addConstraint(Sketcher.Constraint("Horizontal", 1, 2, 4, 2))
sketch16.addConstraint(Sketcher.Constraint("Horizontal", 3, 2, 6, 2))
sketch16.addConstraint(Sketcher.Constraint("DistanceX", 1, 1, 1, 2, Q("4.304923 mm")))
sketch16.addConstraint(Sketcher.Constraint("DistanceX", 5, 1, 5, 2, Q("4.976474 mm")))
sketch16.addConstraint(Sketcher.Constraint("DistanceY", 0, 2, 0, 1, Q("22.906013 mm")))
sketch16.addConstraint(Sketcher.Constraint("DistanceX", 0, 2, -1, 1, Q("43.071561 mm")))
sketch16.addConstraint(Sketcher.Constraint("DistanceY", 0, 2, -1, 1, Q("48.003979 mm")))
sketch16.addConstraint(Sketcher.Constraint("DistanceX", -1, 1, 5, 2, Q("14.009848 mm")))
pad11 = body.newObject("PartDesign::Pad", "Pad010")
pad11.Profile = sketch16
pad11.Length = Q("0.4 in")

sketch17 = body.newObject("Sketcher::SketchObject", "Sketch016")
sketch17.AttachmentSupport = (doc.getObject("YZ_Plane"), [""])
sketch17.MapMode = "FlatFace"
sketch17.AttachmentOffset = App.Placement(Vector(0, 0, 9.033374), App.Rotation())
add_polygon(sketch17, [(-25.097966, 142.444385), (-25.097966, 139.882699), (-48.003979, 139.882699), (-48.003979, 142.444385)])
sketch17.addConstraint(Sketcher.Constraint("Vertical", 0))
sketch17.addConstraint(Sketcher.Constraint("Horizontal", 1))
sketch17.addConstraint(Sketcher.Constraint("Vertical", 2))
sketch17.addConstraint(Sketcher.Constraint("Horizontal", 3))
sketch17.addConstraint(Sketcher.Constraint("DistanceY", -1, 1, 0, 2, Q("139.882699 mm")))
sketch17.addConstraint(Sketcher.Constraint("DistanceX", 1, 2, 1, 1, Q("22.906013 mm")))
sketch17.addConstraint(Sketcher.Constraint("DistanceY", 0, 2, 0, 1, Q("2.561686 mm")))
sketch17.addConstraint(Sketcher.Constraint("DistanceX", 1, 2, -1, 1, Q("48.003979 mm")))
pad12 = body.newObject("PartDesign::Pad", "Pad011")
pad12.Profile = sketch17
pad12.Length = Q("0.1 in")
pad12.Reversed = True

sketch18 = body.newObject("Sketcher::SketchObject", "Sketch017")
sketch18.AttachmentSupport = (doc.getObject("YZ_Plane"), [""])
sketch18.MapMode = "FlatFace"
sketch18.AttachmentOffset = App.Placement(Vector(0, 0, -38.766637), App.Rotation())
add_polygon(sketch18, [(-48.003979, 142.444385), (-48.003979, 139.670342), (-25.097966, 139.670342), (-25.097966, 142.444385)])
sketch18.addConstraint(Sketcher.Constraint("Vertical", 0))
sketch18.addConstraint(Sketcher.Constraint("Horizontal", 1))
sketch18.addConstraint(Sketcher.Constraint("Vertical", 2))
sketch18.addConstraint(Sketcher.Constraint("Horizontal", 3))
sketch18.addConstraint(Sketcher.Constraint("DistanceX", 1, 1, 1, 2, Q("22.906013 mm")))
sketch18.addConstraint(Sketcher.Constraint("DistanceY", 0, 2, 0, 1, Q("2.774043 mm")))
sketch18.addConstraint(Sketcher.Constraint("DistanceX", 0, 2, -1, 1, Q("48.003979 mm")))
sketch18.addConstraint(Sketcher.Constraint("DistanceY", -1, 1, 0, 2, Q("139.670342 mm")))
pad13 = body.newObject("PartDesign::Pad", "Pad012")
pad13.Profile = sketch18
pad13.Length = Q("0.1 in")

sketch19 = body.newObject("Sketcher::SketchObject", "Sketch018")
sketch19.AttachmentSupport = (doc.getObject("XY_Plane"), [""])
sketch19.MapMode = "FlatFace"
sketch19.addGeometry(Part.Circle(Vector(0, 0, 0), Vector(0, 0, 1), 10.668), False)
sketch19.addConstraint(Sketcher.Constraint("Coincident", 0, 3, -1, 1))
sketch19.addConstraint(Sketcher.Constraint("Diameter", 0, Q("0.84 in")))
pocket6 = body.newObject("PartDesign::Pocket", "Pocket005")
pocket6.Profile = sketch19
pocket6.Length = Q("1.6 in")
pocket6.Reversed = True

sketch20 = body.newObject("Sketcher::SketchObject", "Sketch019")
sketch20.AttachmentSupport = (doc.getObject("XZ_Plane"), [""])
sketch20.MapMode = "FlatFace"
sketch20.addGeometry(Part.Circle(Vector(0, 18.586656, 0), Vector(0, 0, 1), 3.223192), False)
sketch20.addConstraint(Sketcher.Constraint("PointOnObject", 0, 3, -2))
sketch20.addConstraint(Sketcher.Constraint("Diameter", 0, Q("6.446383 mm")))
sketch20.addConstraint(Sketcher.Constraint("DistanceY", -1, 1, 0, 3, Q("18.586656 mm")))
pad14 = body.newObject("PartDesign::Pad", "Pad013")
pad14.Profile = sketch20
pad14.Length = Q("0.9 in")
pad14.Reversed = True

sketch21 = body.newObject("Sketcher::SketchObject", "Sketch020")
sketch21.AttachmentSupport = (doc.getObject("XZ_Plane"), [""])
sketch21.MapMode = "FlatFace"
sketch21.AttachmentOffset = App.Placement(Vector(0, 0, -0.9 * 25.4), App.Rotation())
sketch21.addGeometry(Part.Circle(Vector(0, 18.586656, 0), Vector(0, 0, 1), 2.083532), False)
sketch21.addConstraint(Sketcher.Constraint("PointOnObject", 0, 3, -2))
sketch21.addConstraint(Sketcher.Constraint("Diameter", 0, Q("4.167065 mm")))
sketch21.addConstraint(Sketcher.Constraint("DistanceY", -1, 1, 0, 3, Q("18.586656 mm")))
pad15 = body.newObject("PartDesign::Pad", "Pad014")
pad15.Profile = sketch21
pad15.Length = Q("0.1 in")
pad15.Reversed = True

sketch22 = body.newObject("Sketcher::SketchObject", "Sketch021")
sketch22.AttachmentSupport = (doc.getObject("XZ_Plane"), [""])
sketch22.MapMode = "FlatFace"
sketch22.AttachmentOffset = App.Placement(Vector(0, 0, -1 * 25.4), App.Rotation())
sketch22.addGeometry(Part.Circle(Vector(0, 18.586656, 0), Vector(0, 0, 1), 5.386828), False)
sketch22.addConstraint(Sketcher.Constraint("PointOnObject", 0, 3, -2))
sketch22.addConstraint(Sketcher.Constraint("Diameter", 0, Q("10.773656 mm")))
sketch22.addConstraint(Sketcher.Constraint("DistanceY", -1, 1, 0, 3, Q("18.586656 mm")))
pad16 = body.newObject("PartDesign::Pad", "Pad015")
pad16.Profile = sketch22
pad16.Length = Q("0.3 in")
pad16.Reversed = True

doc.recompute()
